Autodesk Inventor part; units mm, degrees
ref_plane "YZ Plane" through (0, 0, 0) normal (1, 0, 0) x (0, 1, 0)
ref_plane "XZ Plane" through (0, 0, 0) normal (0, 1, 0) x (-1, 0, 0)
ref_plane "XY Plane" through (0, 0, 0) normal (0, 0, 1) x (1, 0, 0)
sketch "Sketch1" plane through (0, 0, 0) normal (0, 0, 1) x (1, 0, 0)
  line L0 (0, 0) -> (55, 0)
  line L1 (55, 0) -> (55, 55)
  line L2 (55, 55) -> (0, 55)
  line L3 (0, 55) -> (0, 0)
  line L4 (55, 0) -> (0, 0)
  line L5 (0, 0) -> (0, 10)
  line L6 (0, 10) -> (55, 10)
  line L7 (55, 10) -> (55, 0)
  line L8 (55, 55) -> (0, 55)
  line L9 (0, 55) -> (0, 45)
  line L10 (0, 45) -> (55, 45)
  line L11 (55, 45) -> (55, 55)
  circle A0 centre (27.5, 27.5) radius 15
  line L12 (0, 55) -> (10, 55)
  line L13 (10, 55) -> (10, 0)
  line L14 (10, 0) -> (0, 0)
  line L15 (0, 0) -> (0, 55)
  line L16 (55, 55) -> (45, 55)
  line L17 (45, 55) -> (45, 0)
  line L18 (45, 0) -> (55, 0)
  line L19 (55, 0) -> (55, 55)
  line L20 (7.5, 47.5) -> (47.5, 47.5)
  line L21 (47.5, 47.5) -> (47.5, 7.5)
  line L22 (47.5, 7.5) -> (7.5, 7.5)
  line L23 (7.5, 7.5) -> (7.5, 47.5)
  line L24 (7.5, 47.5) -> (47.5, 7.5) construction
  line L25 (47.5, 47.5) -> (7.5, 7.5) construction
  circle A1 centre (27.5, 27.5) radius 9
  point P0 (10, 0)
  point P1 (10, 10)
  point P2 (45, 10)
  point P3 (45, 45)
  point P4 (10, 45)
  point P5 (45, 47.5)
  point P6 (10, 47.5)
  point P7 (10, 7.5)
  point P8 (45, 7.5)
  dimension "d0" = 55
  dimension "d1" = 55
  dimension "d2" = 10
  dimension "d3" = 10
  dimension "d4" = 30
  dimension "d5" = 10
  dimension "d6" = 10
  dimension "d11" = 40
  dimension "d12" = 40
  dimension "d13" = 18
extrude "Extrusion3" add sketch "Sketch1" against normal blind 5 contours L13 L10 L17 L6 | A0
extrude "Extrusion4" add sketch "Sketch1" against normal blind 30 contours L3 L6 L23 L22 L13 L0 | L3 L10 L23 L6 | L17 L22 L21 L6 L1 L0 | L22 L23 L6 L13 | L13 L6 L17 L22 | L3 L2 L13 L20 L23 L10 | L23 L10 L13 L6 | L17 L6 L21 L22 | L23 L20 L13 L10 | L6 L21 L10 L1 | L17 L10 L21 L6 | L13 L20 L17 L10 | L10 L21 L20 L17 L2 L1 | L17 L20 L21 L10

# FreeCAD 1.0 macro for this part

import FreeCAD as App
import Part
import Sketcher
from FreeCAD import Vector
Q = App.Units.Quantity

doc = App.newDocument("Part")
body = doc.addObject("PartDesign::Body", "Body")

# Sketch on XY plane
sketch1 = body.newObject("Sketcher::SketchObject", "Sketch")
sketch1.AttachmentSupport = (doc.getObject("XY_Plane"), [""])
sketch1.MapMode = "FlatFace"
sketch1.addGeometry([
    Part.LineSegment(Vector(10, 45, 0), Vector(10, 10, 0)),  # 0
    Part.LineSegment(Vector(10, 10, 0), Vector(45, 10, 0)),  # 1
    Part.LineSegment(Vector(45, 10, 0), Vector(45, 45, 0)),  # 2
    Part.LineSegment(Vector(45, 45, 0), Vector(10, 45, 0)),  # 3
    Part.Circle(Vector(27.5, 27.5, 0), Vector(0, 0, 1), 9),  # 4
], False)
sketch1.addConstraint([
    Sketcher.Constraint("Coincident", 0, 2, 1, 1),
    Sketcher.Constraint("Coincident", 1, 2, 2, 1),
    Sketcher.Constraint("Coincident", 2, 2, 3, 1),
    Sketcher.Constraint("Coincident", 3, 2, 0, 1),
    Sketcher.Constraint("Vertical", 0),
    Sketcher.Constraint("Horizontal", 1),
    Sketcher.Constraint("Vertical", 2),
    Sketcher.Constraint("Horizontal", 3),
    Sketcher.Constraint("Equal", 3, 0),
    Sketcher.Constraint("Diameter", 4, Q("18 mm")),
    Sketcher.Constraint("DistanceX", -1, 1, 0, 2, Q("10 mm")),
    Sketcher.Constraint("DistanceY", -1, 1, 0, 2, Q("10 mm")),
    Sketcher.Constraint("DistanceX", 1, 1, 1, 2, Q("35 mm")),
    Sketcher.Constraint("DistanceX", -1, 1, 4, 3, Q("27.5 mm")),
    Sketcher.Constraint("DistanceY", -1, 1, 4, 3, Q("27.5 mm")),
])
pad1 = body.newObject("PartDesign::Pad", "Pad")
pad1.Profile = sketch1
pad1.Length = 5
pad1.Reversed = True

# Sketch on XY plane
sketch2 = body.newObject("Sketcher::SketchObject", "Sketch001")
sketch2.AttachmentSupport = (doc.getObject("XY_Plane"), [""])
sketch2.MapMode = "FlatFace"
sketch2.addGeometry([
    Part.LineSegment(Vector(0, 0, 0), Vector(10, 0, 0)),  # 0
    Part.LineSegment(Vector(10, 0, 0), Vector(10, 7.5, 0)),  # 1
    Part.LineSegment(Vector(10, 7.5, 0), Vector(45, 7.5, 0)),  # 2
    Part.LineSegment(Vector(45, 7.5, 0), Vector(45, 0, 0)),  # 3
    Part.LineSegment(Vector(45, 0, 0), Vector(55, 0, 0)),  # 4
    Part.LineSegment(Vector(55, 0, 0), Vector(55, 55, 0)),  # 5
    Part.LineSegment(Vector(55, 55, 0), Vector(45, 55, 0)),  # 6
    Part.LineSegment(Vector(45, 55, 0), Vector(45, 47.5, 0)),  # 7
    Part.LineSegment(Vector(45, 47.5, 0), Vector(10, 47.5, 0)),  # 8
    Part.LineSegment(Vector(10, 47.5, 0), Vector(10, 55, 0)),  # 9
    Part.LineSegment(Vector(10, 55, 0), Vector(0, 55, 0)),  # 10
    Part.LineSegment(Vector(0, 55, 0), Vector(0, 0, 0)),  # 11
    Part.LineSegment(Vector(10, 10, 0), Vector(10, 45, 0)),  # 12
    Part.LineSegment(Vector(10, 45, 0), Vector(45, 45, 0)),  # 13
    Part.LineSegment(Vector(45, 45, 0), Vector(45, 10, 0)),  # 14
    Part.LineSegment(Vector(45, 10, 0), Vector(10, 10, 0)),  # 15
], False)
sketch2.addConstraint([
    Sketcher.Constraint("Coincident", 0, 2, 1, 1),
    Sketcher.Constraint("Coincident", 1, 2, 2, 1),
    Sketcher.Constraint("Coincident", 2, 2, 3, 1),
    Sketcher.Constraint("Coincident", 3, 2, 4, 1),
    Sketcher.Constraint("Coincident", 4, 2, 5, 1),
    Sketcher.Constraint("Coincident", 5, 2, 6, 1),
    Sketcher.Constraint("Coincident", 6, 2, 7, 1),
    Sketcher.Constraint("Coincident", 7, 2, 8, 1),
    Sketcher.Constraint("Coincident", 8, 2, 9, 1),
    Sketcher.Constraint("Coincident", 9, 2, 10, 1),
    Sketcher.Constraint("Coincident", 10, 2, 11, 1),
    Sketcher.Constraint("Coincident", 11, 2, 0, 1),
    Sketcher.Constraint("Coincident", 12, 2, 13, 1),
    Sketcher.Constraint("Coincident", 13, 2, 14, 1),
    Sketcher.Constraint("Coincident", 14, 2, 15, 1),
    Sketcher.Constraint("Coincident", 15, 2, 12, 1),
    Sketcher.Constraint("Horizontal", 0),
    Sketcher.Constraint("Vertical", 1),
    Sketcher.Constraint("Horizontal", 2),
    Sketcher.Constraint("Vertical", 3),
    Sketcher.Constraint("Horizontal", 4),
    Sketcher.Constraint("Vertical", 5),
    Sketcher.Constraint("Horizontal", 6),
    Sketcher.Constraint("Vertical", 7),
    Sketcher.Constraint("Horizontal", 8),
    Sketcher.Constraint("Vertical", 9),
    Sketcher.Constraint("Horizontal", 10),
    Sketcher.Constraint("Vertical", 11),
    Sketcher.Constraint("Vertical", 12),
    Sketcher.Constraint("Horizontal", 13),
    Sketcher.Constraint("Vertical", 14),
    Sketcher.Constraint("Horizontal", 15),
    Sketcher.Constraint("Coincident", 11, 2, -1, 1),
    Sketcher.Constraint("PointOnObject", 3, 2, -1),
    Sketcher.Constraint("Horizontal", 6, 2, 9, 2),
    Sketcher.Constraint("Vertical", 3, 2, 6, 2),
    Sketcher.Constraint("Vertical", 1, 2, 8, 2),
    Sketcher.Constraint("Vertical", 9, 2, 12, 2),
    Sketcher.Constraint("Vertical", 7, 2, 13, 2),
    Sketcher.Constraint("Equal", 0, 4),
    Sketcher.Constraint("Equal", 3, 7),
    Sketcher.Constraint("Equal", 15, 12),
    Sketcher.Constraint("DistanceX", 0, 1, 0, 2, Q("10 mm")),
    Sketcher.Constraint("DistanceY", 5, 1, 5, 2, Q("55 mm")),
    Sketcher.Constraint("DistanceX", -1, 1, 4, 2, Q("55 mm")),
    Sketcher.Constraint("DistanceY", -1, 1, 14, 2, Q("10 mm")),
    Sketcher.Constraint("DistanceY", 2, 2, 7, 2, Q("40 mm")),
])
pad2 = body.newObject("PartDesign::Pad", "Pad001")
pad2.Profile = sketch2
pad2.Length = 30
pad2.Reversed = True

doc.recompute()
